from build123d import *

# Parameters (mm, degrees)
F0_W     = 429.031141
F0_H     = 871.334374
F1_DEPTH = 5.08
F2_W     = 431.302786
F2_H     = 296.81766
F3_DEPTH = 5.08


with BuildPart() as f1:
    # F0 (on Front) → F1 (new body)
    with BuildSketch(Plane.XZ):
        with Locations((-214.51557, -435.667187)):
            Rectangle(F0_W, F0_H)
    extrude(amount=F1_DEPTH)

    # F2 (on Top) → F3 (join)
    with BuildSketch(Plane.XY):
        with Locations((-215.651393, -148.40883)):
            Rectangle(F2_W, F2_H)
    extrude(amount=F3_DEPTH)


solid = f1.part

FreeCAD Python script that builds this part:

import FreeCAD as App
import Part
import Sketcher

V = App.Vector
Q = App.Units.Quantity

doc = App.newDocument("Part")
body = doc.addObject("PartDesign::Body", "Body")

sketch1 = doc.addObject("Sketcher::SketchObject", "Sketch")
body.addObject(sketch1)
sketch1.AttachmentSupport = (doc.XZ_Plane, [""])
sketch1.MapMode = "FlatFace"
sketch1.addGeometry(Part.LineSegment(V(-429.03114, 0, 0), V(-429.03114, -871.334374, 0)), False)
sketch1.addGeometry(Part.LineSegment(V(-429.03114, -871.334374, 0), V(0, -871.334374, 0)), False)
sketch1.addGeometry(Part.LineSegment(V(0, -871.334374, 0), V(0, 0, 0)), False)
sketch1.addGeometry(Part.LineSegment(V(0, 0, 0), V(-429.03114, 0, 0)), False)
sketch1.addConstraint(Sketcher.Constraint("Coincident", 0, 2, 1, 1))
sketch1.addConstraint(Sketcher.Constraint("Coincident", 1, 2, 2, 1))
sketch1.addConstraint(Sketcher.Constraint("Coincident", 2, 2, 3, 1))
sketch1.addConstraint(Sketcher.Constraint("Coincident", 3, 2, 0, 1))
sketch1.addConstraint(Sketcher.Constraint("Vertical", 0))
sketch1.addConstraint(Sketcher.Constraint("Horizontal", 1))
sketch1.addConstraint(Sketcher.Constraint("Vertical", 2))
sketch1.addConstraint(Sketcher.Constraint("Horizontal", 3))
sketch1.addConstraint(Sketcher.Constraint("Coincident", 2, 2, -1, 1))
sketch1.addConstraint(Sketcher.Constraint("DistanceX", 1, 1, 1, 2, Q("429.031141 mm")))
sketch1.addConstraint(Sketcher.Constraint("DistanceY", 0, 2, 0, 1, Q("871.334374 mm")))
pad1 = doc.addObject("PartDesign::Pad", "Pad")
body.addObject(pad1)
pad1.Profile = sketch1
pad1.Length = Q("0.2 in")

sketch2 = doc.addObject("Sketcher::SketchObject", "Sketch001")
body.addObject(sketch2)
sketch2.AttachmentSupport = (doc.XY_Plane, [""])
sketch2.MapMode = "FlatFace"
sketch2.addGeometry(Part.LineSegment(V(-431.302786, 0, 0), V(-431.302786, -296.81766, 0)), False)
sketch2.addGeometry(Part.LineSegment(V(-431.302786, -296.81766, 0), V(0, -296.81766, 0)), False)
sketch2.addGeometry(Part.LineSegment(V(0, -296.81766, 0), V(0, 0, 0)), False)
sketch2.addGeometry(Part.LineSegment(V(0, 0, 0), V(-431.302786, 0, 0)), False)
sketch2.addConstraint(Sketcher.Constraint("Coincident", 0, 2, 1, 1))
sketch2.addConstraint(Sketcher.Constraint("Coincident", 1, 2, 2, 1))
sketch2.addConstraint(Sketcher.Constraint("Coincident", 2, 2, 3, 1))
sketch2.addConstraint(Sketcher.Constraint("Coincident", 3, 2, 0, 1))
sketch2.addConstraint(Sketcher.Constraint("Vertical", 0))
sketch2.addConstraint(Sketcher.Constraint("Horizontal", 1))
sketch2.addConstraint(Sketcher.Constraint("Vertical", 2))
sketch2.addConstraint(Sketcher.Constraint("Horizontal", 3))
sketch2.addConstraint(Sketcher.Constraint("Coincident", 2, 2, -1, 1))
sketch2.addConstraint(Sketcher.Constraint("DistanceY", 0, 2, 0, 1, Q("296.81766 mm")))
sketch2.addConstraint(Sketcher.Constraint("DistanceX", 1, 1, 1, 2, Q("431.302786 mm")))
pad2 = doc.addObject("PartDesign::Pad", "Pad001")
body.addObject(pad2)
pad2.Profile = sketch2
pad2.Length = Q("0.2 in")

doc.recompute()
